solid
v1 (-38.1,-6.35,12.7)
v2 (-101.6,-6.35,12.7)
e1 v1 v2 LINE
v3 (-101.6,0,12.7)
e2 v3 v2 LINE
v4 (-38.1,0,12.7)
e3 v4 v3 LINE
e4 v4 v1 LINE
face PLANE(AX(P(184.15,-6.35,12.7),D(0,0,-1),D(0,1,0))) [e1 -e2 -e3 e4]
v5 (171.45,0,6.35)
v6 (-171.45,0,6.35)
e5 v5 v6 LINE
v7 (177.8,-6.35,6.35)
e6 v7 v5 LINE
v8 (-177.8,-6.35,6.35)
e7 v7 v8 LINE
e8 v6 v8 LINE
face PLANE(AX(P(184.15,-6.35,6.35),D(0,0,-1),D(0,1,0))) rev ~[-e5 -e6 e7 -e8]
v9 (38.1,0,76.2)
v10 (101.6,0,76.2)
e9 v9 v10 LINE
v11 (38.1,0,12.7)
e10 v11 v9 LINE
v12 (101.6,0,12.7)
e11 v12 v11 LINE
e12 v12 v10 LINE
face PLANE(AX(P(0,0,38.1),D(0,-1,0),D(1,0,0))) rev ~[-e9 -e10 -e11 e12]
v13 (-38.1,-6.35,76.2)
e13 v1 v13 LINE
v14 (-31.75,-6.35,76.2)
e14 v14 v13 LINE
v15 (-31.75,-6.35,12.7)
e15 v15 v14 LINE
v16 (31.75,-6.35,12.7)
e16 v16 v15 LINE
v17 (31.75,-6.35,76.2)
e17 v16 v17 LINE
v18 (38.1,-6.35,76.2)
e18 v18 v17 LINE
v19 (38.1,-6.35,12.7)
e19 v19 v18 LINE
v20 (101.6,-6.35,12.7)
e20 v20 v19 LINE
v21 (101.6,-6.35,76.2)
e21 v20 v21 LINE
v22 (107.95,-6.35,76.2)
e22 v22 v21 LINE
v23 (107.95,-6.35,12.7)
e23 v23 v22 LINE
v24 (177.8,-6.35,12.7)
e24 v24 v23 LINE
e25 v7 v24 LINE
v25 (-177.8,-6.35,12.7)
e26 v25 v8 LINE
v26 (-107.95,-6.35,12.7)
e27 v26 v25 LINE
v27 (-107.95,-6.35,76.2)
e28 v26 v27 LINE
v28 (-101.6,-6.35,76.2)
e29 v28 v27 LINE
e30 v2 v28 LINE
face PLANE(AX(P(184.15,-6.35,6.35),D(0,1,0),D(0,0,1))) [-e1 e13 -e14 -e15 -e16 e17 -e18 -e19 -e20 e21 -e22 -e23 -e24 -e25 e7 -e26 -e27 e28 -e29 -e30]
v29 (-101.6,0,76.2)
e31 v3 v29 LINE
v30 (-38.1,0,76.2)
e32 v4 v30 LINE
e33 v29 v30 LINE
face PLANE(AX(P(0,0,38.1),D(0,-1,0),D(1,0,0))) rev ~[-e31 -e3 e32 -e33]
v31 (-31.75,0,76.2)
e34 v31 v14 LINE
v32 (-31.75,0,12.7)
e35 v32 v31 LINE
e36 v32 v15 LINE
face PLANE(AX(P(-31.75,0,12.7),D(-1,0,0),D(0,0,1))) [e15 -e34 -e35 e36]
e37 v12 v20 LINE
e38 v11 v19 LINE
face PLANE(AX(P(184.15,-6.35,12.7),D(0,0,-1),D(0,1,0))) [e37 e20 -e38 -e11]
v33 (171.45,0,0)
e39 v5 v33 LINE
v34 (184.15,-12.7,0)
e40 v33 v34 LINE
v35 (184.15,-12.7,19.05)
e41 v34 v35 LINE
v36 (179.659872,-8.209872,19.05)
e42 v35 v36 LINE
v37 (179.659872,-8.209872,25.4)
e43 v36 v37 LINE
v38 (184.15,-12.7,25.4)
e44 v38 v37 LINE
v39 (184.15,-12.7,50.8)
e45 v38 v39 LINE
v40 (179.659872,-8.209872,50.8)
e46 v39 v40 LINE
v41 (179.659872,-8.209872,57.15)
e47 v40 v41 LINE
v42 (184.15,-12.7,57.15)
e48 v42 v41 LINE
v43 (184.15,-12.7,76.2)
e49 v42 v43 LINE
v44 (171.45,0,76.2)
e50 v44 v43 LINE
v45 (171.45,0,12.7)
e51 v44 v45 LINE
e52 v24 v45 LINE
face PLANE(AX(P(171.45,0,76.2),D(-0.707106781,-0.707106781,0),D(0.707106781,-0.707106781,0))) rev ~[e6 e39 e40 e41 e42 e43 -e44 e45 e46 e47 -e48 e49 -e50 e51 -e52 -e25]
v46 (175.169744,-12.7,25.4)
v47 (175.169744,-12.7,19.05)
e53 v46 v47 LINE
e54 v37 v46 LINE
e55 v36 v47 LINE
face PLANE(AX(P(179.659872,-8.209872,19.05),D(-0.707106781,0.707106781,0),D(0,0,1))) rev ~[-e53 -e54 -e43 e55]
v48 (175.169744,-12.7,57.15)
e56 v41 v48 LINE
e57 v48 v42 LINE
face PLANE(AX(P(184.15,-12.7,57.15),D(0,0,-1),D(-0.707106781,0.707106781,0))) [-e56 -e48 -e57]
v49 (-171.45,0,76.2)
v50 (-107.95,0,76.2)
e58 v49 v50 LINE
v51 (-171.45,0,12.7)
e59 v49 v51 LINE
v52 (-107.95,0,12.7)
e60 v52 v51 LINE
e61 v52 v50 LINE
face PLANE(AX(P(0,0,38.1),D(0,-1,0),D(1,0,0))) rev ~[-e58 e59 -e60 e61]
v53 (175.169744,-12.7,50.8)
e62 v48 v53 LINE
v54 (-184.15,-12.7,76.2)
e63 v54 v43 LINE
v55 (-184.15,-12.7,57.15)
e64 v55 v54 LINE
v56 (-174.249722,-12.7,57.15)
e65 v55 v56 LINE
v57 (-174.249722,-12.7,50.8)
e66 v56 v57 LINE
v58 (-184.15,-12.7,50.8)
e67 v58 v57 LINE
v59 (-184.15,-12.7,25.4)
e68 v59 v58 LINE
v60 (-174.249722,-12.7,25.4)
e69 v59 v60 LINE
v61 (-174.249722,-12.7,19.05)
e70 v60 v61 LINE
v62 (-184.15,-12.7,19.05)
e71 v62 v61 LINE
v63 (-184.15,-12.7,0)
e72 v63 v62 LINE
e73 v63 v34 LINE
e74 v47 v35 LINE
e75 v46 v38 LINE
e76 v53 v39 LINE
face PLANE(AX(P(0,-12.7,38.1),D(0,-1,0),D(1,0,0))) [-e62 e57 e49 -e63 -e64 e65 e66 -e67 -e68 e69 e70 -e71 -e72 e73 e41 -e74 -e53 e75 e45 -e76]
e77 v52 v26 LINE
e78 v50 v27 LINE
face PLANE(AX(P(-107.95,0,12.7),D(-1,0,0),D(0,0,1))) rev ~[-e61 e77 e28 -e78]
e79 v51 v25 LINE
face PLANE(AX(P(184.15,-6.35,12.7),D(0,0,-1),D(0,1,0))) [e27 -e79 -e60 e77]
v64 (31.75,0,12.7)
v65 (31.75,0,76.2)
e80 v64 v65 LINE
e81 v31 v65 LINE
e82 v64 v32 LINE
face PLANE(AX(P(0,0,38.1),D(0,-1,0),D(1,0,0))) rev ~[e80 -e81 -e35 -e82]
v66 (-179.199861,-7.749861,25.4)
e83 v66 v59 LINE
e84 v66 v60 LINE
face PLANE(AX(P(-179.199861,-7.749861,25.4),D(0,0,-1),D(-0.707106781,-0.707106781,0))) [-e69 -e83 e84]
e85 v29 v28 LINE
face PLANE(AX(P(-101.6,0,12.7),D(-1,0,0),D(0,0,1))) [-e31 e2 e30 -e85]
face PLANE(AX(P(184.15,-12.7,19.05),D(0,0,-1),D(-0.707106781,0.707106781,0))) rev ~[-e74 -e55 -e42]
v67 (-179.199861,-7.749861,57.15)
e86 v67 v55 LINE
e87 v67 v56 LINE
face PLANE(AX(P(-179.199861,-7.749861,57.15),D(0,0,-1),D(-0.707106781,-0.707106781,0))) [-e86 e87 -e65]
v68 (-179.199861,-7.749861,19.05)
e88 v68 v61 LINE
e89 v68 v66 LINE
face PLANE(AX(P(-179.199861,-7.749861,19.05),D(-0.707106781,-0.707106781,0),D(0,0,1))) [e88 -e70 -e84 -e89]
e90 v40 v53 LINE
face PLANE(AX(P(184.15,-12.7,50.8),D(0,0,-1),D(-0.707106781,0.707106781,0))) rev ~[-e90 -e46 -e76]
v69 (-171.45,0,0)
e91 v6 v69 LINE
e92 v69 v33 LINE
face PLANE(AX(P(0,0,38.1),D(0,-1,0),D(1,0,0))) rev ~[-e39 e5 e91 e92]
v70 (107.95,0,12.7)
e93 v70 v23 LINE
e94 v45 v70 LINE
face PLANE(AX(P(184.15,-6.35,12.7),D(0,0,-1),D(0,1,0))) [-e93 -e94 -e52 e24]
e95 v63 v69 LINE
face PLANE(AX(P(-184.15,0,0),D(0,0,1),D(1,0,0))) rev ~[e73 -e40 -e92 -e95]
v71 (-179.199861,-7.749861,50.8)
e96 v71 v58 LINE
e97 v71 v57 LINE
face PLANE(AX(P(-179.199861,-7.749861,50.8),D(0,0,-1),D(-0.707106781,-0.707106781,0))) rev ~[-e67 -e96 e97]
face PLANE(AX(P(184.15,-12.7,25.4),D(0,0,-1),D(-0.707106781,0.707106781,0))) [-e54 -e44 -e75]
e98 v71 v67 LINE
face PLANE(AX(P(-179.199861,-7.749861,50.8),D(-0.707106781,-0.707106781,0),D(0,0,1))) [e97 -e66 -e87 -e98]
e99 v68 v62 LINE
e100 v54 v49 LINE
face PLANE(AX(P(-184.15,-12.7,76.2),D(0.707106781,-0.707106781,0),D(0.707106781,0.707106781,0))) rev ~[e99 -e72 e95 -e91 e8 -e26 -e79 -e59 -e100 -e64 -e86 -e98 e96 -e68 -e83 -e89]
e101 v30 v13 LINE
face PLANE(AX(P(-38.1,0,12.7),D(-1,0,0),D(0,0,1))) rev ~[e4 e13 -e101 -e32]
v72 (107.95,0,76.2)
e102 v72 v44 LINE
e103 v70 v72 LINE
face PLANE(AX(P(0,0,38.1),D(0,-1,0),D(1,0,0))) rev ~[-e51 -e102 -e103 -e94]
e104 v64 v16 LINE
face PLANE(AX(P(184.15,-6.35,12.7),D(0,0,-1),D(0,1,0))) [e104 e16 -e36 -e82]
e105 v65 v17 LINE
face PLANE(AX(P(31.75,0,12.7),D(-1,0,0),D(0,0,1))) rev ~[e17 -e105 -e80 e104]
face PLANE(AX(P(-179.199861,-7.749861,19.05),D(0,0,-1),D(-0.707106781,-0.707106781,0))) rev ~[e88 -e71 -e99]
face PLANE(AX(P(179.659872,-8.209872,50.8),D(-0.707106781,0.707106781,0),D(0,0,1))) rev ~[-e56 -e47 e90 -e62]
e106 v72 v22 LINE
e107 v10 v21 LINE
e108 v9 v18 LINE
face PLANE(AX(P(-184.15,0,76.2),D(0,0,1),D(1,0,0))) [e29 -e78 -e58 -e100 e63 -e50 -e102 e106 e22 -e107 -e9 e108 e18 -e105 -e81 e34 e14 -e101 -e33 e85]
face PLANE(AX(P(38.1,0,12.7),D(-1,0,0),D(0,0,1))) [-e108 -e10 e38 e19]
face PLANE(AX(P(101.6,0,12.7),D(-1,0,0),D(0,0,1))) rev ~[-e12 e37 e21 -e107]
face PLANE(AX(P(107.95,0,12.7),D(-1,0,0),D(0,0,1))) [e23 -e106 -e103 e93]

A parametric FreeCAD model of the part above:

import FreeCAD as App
import Part
import Sketcher
from FreeCAD import Vector
Q = App.Units.Quantity

doc = App.newDocument("Part")
body = doc.addObject("PartDesign::Body", "Body")

# Sketch on XZ plane
sketch1 = doc.addObject("Sketcher::SketchObject", "Sketch")
body.addObject(sketch1)
sketch1.AttachmentSupport = (doc.XZ_Plane, [""])
sketch1.MapMode = "FlatFace"
sketch1.addGeometry([
    Part.LineSegment(Vector(-184, 76, 0), Vector(-184, 0, 0)),
    Part.LineSegment(Vector(-184, 0, 0), Vector(184, 0, 0)),
    Part.LineSegment(Vector(184, 0, 0), Vector(184, 76, 0)),
    Part.LineSegment(Vector(184, 76, 0), Vector(-184, 76, 0)),
], False)
sketch1.addConstraint([
    Sketcher.Constraint("Coincident", 0, 2, 1, 1),
    Sketcher.Constraint("Coincident", 1, 2, 2, 1),
    Sketcher.Constraint("Coincident", 2, 2, 3, 1),
    Sketcher.Constraint("Coincident", 3, 2, 0, 1),
    Sketcher.Constraint("Vertical", 0),
    Sketcher.Constraint("Horizontal", 1),
    Sketcher.Constraint("Vertical", 2),
    Sketcher.Constraint("Horizontal", 3),
    Sketcher.Constraint("Symmetric", 0, 2, 1, 2, -1, 1),
    Sketcher.Constraint("DistanceY", 0, 2, 0, 1, Q("3 in")),
    Sketcher.Constraint("DistanceX", 1, 1, 1, 2, Q("14.5 in")),
])
pad1 = doc.addObject("PartDesign::Pad", "Pad")
body.addObject(pad1)
pad1.Profile = sketch1
pad1.Length = Q("0.5 in")

# Sketch on YZ plane
sketch2 = doc.addObject("Sketcher::SketchObject", "Sketch001")
body.addObject(sketch2)
sketch2.AttachmentSupport = (doc.YZ_Plane, [""])
sketch2.MapMode = "FlatFace"
sketch2.AttachmentOffset = App.Placement(Vector(0, 0, 7.25 * 25.4), App.Rotation())
sketch2.addGeometry([
    Part.LineSegment(Vector(-6, 13, 0), Vector(-6, 6, 0)),
    Part.LineSegment(Vector(-6, 6, 0), Vector(0, 6, 0)),
    Part.LineSegment(Vector(0, 6, 0), Vector(0, 13, 0)),
    Part.LineSegment(Vector(0, 13, 0), Vector(-6, 13, 0)),
], False)
sketch2.addConstraint([
    Sketcher.Constraint("Coincident", 0, 2, 1, 1),
    Sketcher.Constraint("Coincident", 1, 2, 2, 1),
    Sketcher.Constraint("Coincident", 2, 2, 3, 1),
    Sketcher.Constraint("Coincident", 3, 2, 0, 1),
    Sketcher.Constraint("Vertical", 0),
    Sketcher.Constraint("Horizontal", 1),
    Sketcher.Constraint("Vertical", 2),
    Sketcher.Constraint("Horizontal", 3),
    Sketcher.Constraint("PointOnObject", 1, 2, -2),
    Sketcher.Constraint("Equal", 3, 0),
    Sketcher.Constraint("DistanceX", 1, 1, 1, 2, Q("0.25 in")),
    Sketcher.Constraint("DistanceY", -1, 1, 2, 2, Q("0.5 in")),
])
pocket1 = doc.addObject("PartDesign::Pocket", "Pocket")
body.addObject(pocket1)
pocket1.Profile = sketch2
pocket1.Type = "ThroughAll"

# Sketch on XY plane
sketch3 = doc.addObject("Sketcher::SketchObject", "Sketch002")
body.addObject(sketch3)
sketch3.AttachmentSupport = (doc.XY_Plane, [""])
sketch3.MapMode = "FlatFace"
sketch3.AttachmentOffset = App.Placement(Vector(0, 0, 3 * 25.4), App.Rotation())
sketch3.addGeometry([
    Part.LineSegment(Vector(-184, 0, 0), Vector(-184, -13, 0)),  # 0
    Part.LineSegment(Vector(-184, -13, 0), Vector(-171, 0, 0)),  # 1
    Part.LineSegment(Vector(-171, 0, 0), Vector(-184, 0, 0)),  # 2
    Part.LineSegment(Vector(184, -13, 0), Vector(184, 0, 0)),  # 3
    Part.LineSegment(Vector(184, 0, 0), Vector(171, 0, 0)),  # 4
    Part.LineSegment(Vector(171, 0, 0), Vector(184, -13, 0)),  # 5
], False)
sketch3.addConstraint([
    Sketcher.Constraint("Coincident", 0, 2, 1, 1),
    Sketcher.Constraint("Coincident", 1, 2, 2, 1),
    Sketcher.Constraint("Coincident", 2, 2, 0, 1),
    Sketcher.Constraint("Coincident", 3, 2, 4, 1),
    Sketcher.Constraint("Coincident", 4, 2, 5, 1),
    Sketcher.Constraint("Coincident", 5, 2, 3, 1),
    Sketcher.Constraint("Vertical", 0),
    Sketcher.Constraint("Horizontal", 2),
    Sketcher.Constraint("Vertical", 3),
    Sketcher.Constraint("Horizontal", 4),
    Sketcher.Constraint("Symmetric", 2, 2, 3, 2, -1, 1),
    Sketcher.Constraint("Symmetric", 1, 2, 4, 2, -2),
    Sketcher.Constraint("Perpendicular", 1, 5),
    Sketcher.Constraint("Horizontal", 0, 2, 5, 2),
    Sketcher.Constraint("DistanceX", 2, 2, 2, 1, Q("0.5 in")),
    Sketcher.Constraint("DistanceX", 1, 2, 3, 2, Q("14 in")),
])
pocket2 = doc.addObject("PartDesign::Pocket", "Pocket001")
body.addObject(pocket2)
pocket2.Profile = sketch3
pocket2.Type = "ThroughAll"

# Sketch on XZ plane
sketch4 = doc.addObject("Sketcher::SketchObject", "Sketch003")
body.addObject(sketch4)
sketch4.AttachmentSupport = (doc.XZ_Plane, [""])
sketch4.MapMode = "FlatFace"
sketch4.addGeometry([
    Part.LineSegment(Vector(108, 76, 0), Vector(108, 13, 0)),  # 0
    Part.LineSegment(Vector(108, 13, 0), Vector(102, 13, 0)),  # 1
    Part.LineSegment(Vector(102, 13, 0), Vector(102, 76, 0)),  # 2
    Part.LineSegment(Vector(102, 76, 0), Vector(108, 76, 0)),  # 3
    Part.LineSegment(Vector(38, 76, 0), Vector(38, 13, 0)),  # 4
    Part.LineSegment(Vector(38, 13, 0), Vector(32, 13, 0)),  # 5
    Part.LineSegment(Vector(32, 13, 0), Vector(32, 76, 0)),  # 6
    Part.LineSegment(Vector(32, 76, 0), Vector(38, 76, 0)),  # 7
    Part.LineSegment(Vector(-32, 76, 0), Vector(-32, 13, 0)),  # 8
    Part.LineSegment(Vector(-32, 13, 0), Vector(-38, 13, 0)),  # 9
    Part.LineSegment(Vector(-38, 13, 0), Vector(-38, 76, 0)),  # 10
    Part.LineSegment(Vector(-38, 76, 0), Vector(-32, 76, 0)),  # 11
    Part.LineSegment(Vector(-102, 76, 0), Vector(-102, 13, 0)),  # 12
    Part.LineSegment(Vector(-102, 13, 0), Vector(-108, 13, 0)),  # 13
    Part.LineSegment(Vector(-108, 13, 0), Vector(-108, 76, 0)),  # 14
    Part.LineSegment(Vector(-108, 76, 0), Vector(-102, 76, 0)),  # 15
], False)
sketch4.addConstraint([
    Sketcher.Constraint("Coincident", 0, 2, 1, 1),
    Sketcher.Constraint("Coincident", 1, 2, 2, 1),
    Sketcher.Constraint("Coincident", 2, 2, 3, 1),
    Sketcher.Constraint("Coincident", 3, 2, 0, 1),
    Sketcher.Constraint("Coincident", 4, 2, 5, 1),
    Sketcher.Constraint("Coincident", 5, 2, 6, 1),
    Sketcher.Constraint("Coincident", 6, 2, 7, 1),
    Sketcher.Constraint("Coincident", 7, 2, 4, 1),
    Sketcher.Constraint("Coincident", 8, 2, 9, 1),
    Sketcher.Constraint("Coincident", 9, 2, 10, 1),
    Sketcher.Constraint("Coincident", 10, 2, 11, 1),
    Sketcher.Constraint("Coincident", 11, 2, 8, 1),
    Sketcher.Constraint("Coincident", 12, 2, 13, 1),
    Sketcher.Constraint("Coincident", 13, 2, 14, 1),
    Sketcher.Constraint("Coincident", 14, 2, 15, 1),
    Sketcher.Constraint("Coincident", 15, 2, 12, 1),
    Sketcher.Constraint("Vertical", 0),
    Sketcher.Constraint("Horizontal", 1),
    Sketcher.Constraint("Vertical", 2),
    Sketcher.Constraint("Horizontal", 3),
    Sketcher.Constraint("Vertical", 4),
    Sketcher.Constraint("Horizontal", 5),
    Sketcher.Constraint("Vertical", 6),
    Sketcher.Constraint("Horizontal", 7),
    Sketcher.Constraint("Vertical", 8),
    Sketcher.Constraint("Horizontal", 9),
    Sketcher.Constraint("Vertical", 10),
    Sketcher.Constraint("Horizontal", 11),
    Sketcher.Constraint("Vertical", 12),
    Sketcher.Constraint("Horizontal", 13),
    Sketcher.Constraint("Vertical", 14),
    Sketcher.Constraint("Horizontal", 15),
    Sketcher.Constraint("Symmetric", 5, 2, 8, 2, -2),
    Sketcher.Constraint("Symmetric", 7, 2, 10, 2, -2),
    Sketcher.Constraint("Symmetric", 1, 2, 12, 2, -2),
    Sketcher.Constraint("Symmetric", 3, 2, 14, 2, -2),
    Sketcher.Constraint("Horizontal", 1, 2, 4, 2),
    Sketcher.Constraint("Horizontal", 3, 2, 6, 2),
    Sketcher.Constraint("Equal", 3, 5),
    Sketcher.Constraint("DistanceY", 0, 2, 0, 1, Q("2.5 in")),
    Sketcher.Constraint("DistanceX", -1, 1, 1, 2, Q("4 in")),
    Sketcher.Constraint("DistanceY", -1, 1, 2, 2, Q("3 in")),
    Sketcher.Constraint("DistanceX", 5, 2, 0, 2, Q("3 in")),
    Sketcher.Constraint("DistanceX", 9, 2, 4, 2, Q("3 in")),
])
pocket3 = doc.addObject("PartDesign::Pocket", "Pocket002")
body.addObject(pocket3)
pocket3.Profile = sketch4
pocket3.Length = Q("0.25 in")
pocket3.Reversed = True

# Sketch on an angled plane
sketch5 = doc.addObject("Sketcher::SketchObject", "Sketch004")
body.addObject(sketch5)
sketch5.Placement = App.Placement(Vector(-85.725, 85.725, 0), App.Rotation(Vector(-0.707106781, -0.707106781, 0), Vector(0, 0, 0.999999999), Vector(-0.707106781, 0.707106781, 0), "ZXY"))
sketch5.addGeometry([
    Part.LineSegment(Vector(132, 57, 0), Vector(132, 51, 0)),  # 0
    Part.LineSegment(Vector(132, 51, 0), Vector(139, 51, 0)),  # 1
    Part.LineSegment(Vector(139, 51, 0), Vector(139, 57, 0)),  # 2
    Part.LineSegment(Vector(139, 57, 0), Vector(132, 57, 0)),  # 3
    Part.LineSegment(Vector(132, 25, 0), Vector(132, 19, 0)),  # 4
    Part.LineSegment(Vector(132, 19, 0), Vector(139, 19, 0)),  # 5
    Part.LineSegment(Vector(139, 19, 0), Vector(139, 25, 0)),  # 6
    Part.LineSegment(Vector(139, 25, 0), Vector(132, 25, 0)),  # 7
], False)
sketch5.addConstraint([
    Sketcher.Constraint("Coincident", 0, 2, 1, 1),
    Sketcher.Constraint("Coincident", 1, 2, 2, 1),
    Sketcher.Constraint("Coincident", 2, 2, 3, 1),
    Sketcher.Constraint("Coincident", 3, 2, 0, 1),
    Sketcher.Constraint("Coincident", 4, 2, 5, 1),
    Sketcher.Constraint("Coincident", 5, 2, 6, 1),
    Sketcher.Constraint("Coincident", 6, 2, 7, 1),
    Sketcher.Constraint("Coincident", 7, 2, 4, 1),
    Sketcher.Constraint("Vertical", 0),
    Sketcher.Constraint("Horizontal", 1),
    Sketcher.Constraint("Vertical", 2),
    Sketcher.Constraint("Horizontal", 3),
    Sketcher.Constraint("Vertical", 4),
    Sketcher.Constraint("Horizontal", 5),
    Sketcher.Constraint("Vertical", 6),
    Sketcher.Constraint("Horizontal", 7),
    Sketcher.Constraint("Vertical", 3, 2, 4, 2),
    Sketcher.Constraint("Vertical", 2, 2, 5, 2),
    Sketcher.Constraint("Equal", 2, 4),
    Sketcher.Constraint("DistanceY", -1, 1, 0, 2, Q("2 in")),
    Sketcher.Constraint("DistanceY", -1, 1, 6, 2, Q("1 in")),
    Sketcher.Constraint("DistanceY", 0, 2, 0, 1, Q("0.25 in")),
    Sketcher.Constraint("DistanceX", 1, 1, 1, 2, Q("7.000554 mm")),
    Sketcher.Constraint("DistanceX", -1, 1, 1, 2, Q("139.19397 mm")),
])
pocket4 = doc.addObject("PartDesign::Pocket", "Pocket003")
body.addObject(pocket4)
pocket4.Profile = sketch5
pocket4.Type = "ThroughAll"

# Sketch on an angled plane
sketch6 = doc.addObject("Sketcher::SketchObject", "Sketch005")
body.addObject(sketch6)
sketch6.Placement = App.Placement(Vector(85.725, 85.725, 0), App.Rotation(Vector(-0.707106781, 0.707106781, 0), Vector(0, 0, 0.999999999), Vector(0.707106781, 0.707106781, 0), "ZXY"))
sketch6.addGeometry([
    Part.LineSegment(Vector(-139, 57, 0), Vector(-139, 51, 0)),  # 0
    Part.LineSegment(Vector(-139, 51, 0), Vector(-133, 51, 0)),  # 1
    Part.LineSegment(Vector(-133, 51, 0), Vector(-133, 57, 0)),  # 2
    Part.LineSegment(Vector(-133, 57, 0), Vector(-139, 57, 0)),  # 3
    Part.LineSegment(Vector(-139, 25, 0), Vector(-139, 19, 0)),  # 4
    Part.LineSegment(Vector(-139, 19, 0), Vector(-133, 19, 0)),  # 5
    Part.LineSegment(Vector(-133, 19, 0), Vector(-133, 25, 0)),  # 6
    Part.LineSegment(Vector(-133, 25, 0), Vector(-139, 25, 0)),  # 7
], False)
sketch6.addConstraint([
    Sketcher.Constraint("Coincident", 0, 2, 1, 1),
    Sketcher.Constraint("Coincident", 1, 2, 2, 1),
    Sketcher.Constraint("Coincident", 2, 2, 3, 1),
    Sketcher.Constraint("Coincident", 3, 2, 0, 1),
    Sketcher.Constraint("Coincident", 4, 2, 5, 1),
    Sketcher.Constraint("Coincident", 5, 2, 6, 1),
    Sketcher.Constraint("Coincident", 6, 2, 7, 1),
    Sketcher.Constraint("Coincident", 7, 2, 4, 1),
    Sketcher.Constraint("Vertical", 0),
    Sketcher.Constraint("Horizontal", 1),
    Sketcher.Constraint("Vertical", 2),
    Sketcher.Constraint("Horizontal", 3),
    Sketcher.Constraint("Vertical", 4),
    Sketcher.Constraint("Horizontal", 5),
    Sketcher.Constraint("Vertical", 6),
    Sketcher.Constraint("Horizontal", 7),
    Sketcher.Constraint("Vertical", 3, 2, 4, 2),
    Sketcher.Constraint("Vertical", 2, 2, 5, 2),
    Sketcher.Constraint("Equal", 7, 0),
    Sketcher.Constraint("Equal", 2, 4),
    Sketcher.Constraint("DistanceY", -1, 1, 0, 2, Q("2 in")),
    Sketcher.Constraint("DistanceY", -1, 1, 6, 2, Q("1 in")),
    Sketcher.Constraint("DistanceX", 1, 1, 1, 2, Q("0.25 in")),
    Sketcher.Constraint("DistanceX", 0, 2, -1, 1, Q("139.19397 mm")),
])
pocket5 = doc.addObject("PartDesign::Pocket", "Pocket004")
body.addObject(pocket5)
pocket5.Profile = sketch6
pocket5.Type = "ThroughAll"

doc.recompute()
